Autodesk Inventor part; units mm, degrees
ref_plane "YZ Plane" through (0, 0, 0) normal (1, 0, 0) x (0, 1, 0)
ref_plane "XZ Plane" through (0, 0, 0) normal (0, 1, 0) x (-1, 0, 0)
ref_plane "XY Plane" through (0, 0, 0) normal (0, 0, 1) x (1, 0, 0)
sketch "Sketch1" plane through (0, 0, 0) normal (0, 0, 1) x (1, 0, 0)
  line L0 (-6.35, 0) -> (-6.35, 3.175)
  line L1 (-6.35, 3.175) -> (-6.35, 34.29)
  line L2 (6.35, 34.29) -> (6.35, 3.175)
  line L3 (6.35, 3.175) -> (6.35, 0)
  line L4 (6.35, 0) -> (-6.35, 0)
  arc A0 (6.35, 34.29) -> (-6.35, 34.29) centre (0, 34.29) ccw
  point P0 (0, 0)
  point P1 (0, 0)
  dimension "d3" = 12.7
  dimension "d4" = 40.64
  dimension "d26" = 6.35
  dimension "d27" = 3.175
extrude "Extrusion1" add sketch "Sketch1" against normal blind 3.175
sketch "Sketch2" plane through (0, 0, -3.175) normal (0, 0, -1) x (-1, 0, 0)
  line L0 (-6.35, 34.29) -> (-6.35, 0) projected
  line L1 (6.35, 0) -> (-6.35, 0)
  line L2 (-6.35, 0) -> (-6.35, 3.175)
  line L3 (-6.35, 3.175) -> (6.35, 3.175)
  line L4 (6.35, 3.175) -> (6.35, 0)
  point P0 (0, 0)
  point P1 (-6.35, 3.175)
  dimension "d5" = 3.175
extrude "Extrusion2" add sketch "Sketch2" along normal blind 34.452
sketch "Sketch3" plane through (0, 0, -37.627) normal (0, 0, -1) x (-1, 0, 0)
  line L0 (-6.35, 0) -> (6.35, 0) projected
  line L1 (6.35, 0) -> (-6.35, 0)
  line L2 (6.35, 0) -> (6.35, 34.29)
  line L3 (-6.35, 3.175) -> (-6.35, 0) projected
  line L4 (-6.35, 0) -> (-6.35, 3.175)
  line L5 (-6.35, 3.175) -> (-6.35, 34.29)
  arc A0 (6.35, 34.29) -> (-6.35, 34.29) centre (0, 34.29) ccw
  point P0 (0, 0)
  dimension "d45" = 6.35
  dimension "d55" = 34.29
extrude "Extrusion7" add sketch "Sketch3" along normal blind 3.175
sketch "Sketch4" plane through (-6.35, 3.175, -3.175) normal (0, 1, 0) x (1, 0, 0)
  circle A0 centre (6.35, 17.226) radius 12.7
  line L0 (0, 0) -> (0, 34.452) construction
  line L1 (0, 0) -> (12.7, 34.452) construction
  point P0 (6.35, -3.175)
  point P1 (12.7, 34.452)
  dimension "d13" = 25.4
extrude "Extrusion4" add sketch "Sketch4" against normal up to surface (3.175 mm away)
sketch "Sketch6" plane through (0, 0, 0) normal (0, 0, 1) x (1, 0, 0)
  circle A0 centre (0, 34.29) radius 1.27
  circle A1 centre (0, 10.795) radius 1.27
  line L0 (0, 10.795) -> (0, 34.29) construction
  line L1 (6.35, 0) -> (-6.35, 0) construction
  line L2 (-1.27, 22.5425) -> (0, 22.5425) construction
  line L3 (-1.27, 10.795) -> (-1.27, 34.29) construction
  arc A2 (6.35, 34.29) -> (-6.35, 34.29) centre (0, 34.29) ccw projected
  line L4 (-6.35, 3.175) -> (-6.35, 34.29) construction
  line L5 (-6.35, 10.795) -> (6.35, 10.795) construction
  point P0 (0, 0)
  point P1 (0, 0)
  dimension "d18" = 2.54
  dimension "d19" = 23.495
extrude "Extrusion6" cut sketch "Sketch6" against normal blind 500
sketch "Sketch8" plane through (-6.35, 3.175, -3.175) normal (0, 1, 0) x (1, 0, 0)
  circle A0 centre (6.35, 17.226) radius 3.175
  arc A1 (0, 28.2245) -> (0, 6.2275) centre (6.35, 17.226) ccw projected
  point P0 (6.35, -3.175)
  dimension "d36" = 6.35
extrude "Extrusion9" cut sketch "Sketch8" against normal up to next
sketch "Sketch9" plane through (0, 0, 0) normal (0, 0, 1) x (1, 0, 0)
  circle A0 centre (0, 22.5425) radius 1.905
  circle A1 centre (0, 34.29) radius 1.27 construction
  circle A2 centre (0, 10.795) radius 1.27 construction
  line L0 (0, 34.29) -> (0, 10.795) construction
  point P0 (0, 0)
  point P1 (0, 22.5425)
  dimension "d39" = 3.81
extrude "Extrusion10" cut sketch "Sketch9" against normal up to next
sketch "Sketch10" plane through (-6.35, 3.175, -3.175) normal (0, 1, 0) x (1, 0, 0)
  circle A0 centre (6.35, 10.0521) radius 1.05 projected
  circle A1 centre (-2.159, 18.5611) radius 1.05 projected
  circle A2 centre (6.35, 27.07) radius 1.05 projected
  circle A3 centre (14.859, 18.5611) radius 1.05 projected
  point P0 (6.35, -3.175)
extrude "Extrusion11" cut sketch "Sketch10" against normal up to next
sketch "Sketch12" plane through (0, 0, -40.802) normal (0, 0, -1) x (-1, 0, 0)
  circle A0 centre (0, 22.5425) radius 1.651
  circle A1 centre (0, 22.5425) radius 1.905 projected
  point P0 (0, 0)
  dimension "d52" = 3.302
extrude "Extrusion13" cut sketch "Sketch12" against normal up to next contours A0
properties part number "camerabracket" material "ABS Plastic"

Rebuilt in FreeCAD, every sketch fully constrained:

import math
import FreeCAD as App
import Part
import Sketcher

V = App.Vector
Q = App.Units.Quantity


def add_polygon(sketch, points):
    """Adds a closed chain of lines whose ends are joined by coincident constraints."""
    first, n = sketch.GeometryCount, len(points)
    for a, b in zip(points, points[1:] + points[:1]):
        sketch.addGeometry(Part.LineSegment(App.Vector(*a, 0), App.Vector(*b, 0)), False)
    for i in range(n):
        sketch.addConstraint(Sketcher.Constraint("Coincident", first + i, 2, first + (i + 1) % n, 1))

doc = App.newDocument("Part")
body = doc.addObject("PartDesign::Body", "Body")

sketch1 = body.newObject("Sketcher::SketchObject", "Sketch")
sketch1.AttachmentSupport = (doc.getObject("XY_Plane"), [""])
sketch1.MapMode = "FlatFace"
sketch1.addGeometry(Part.LineSegment(V(-6.35, 34.29, 0), V(-6.35, 0, 0)), False)
sketch1.addGeometry(Part.LineSegment(V(-6.35, 0, 0), V(6.35, 0, 0)), False)
sketch1.addGeometry(Part.LineSegment(V(6.35, 0, 0), V(6.35, 34.29, 0)), False)
sketch1.addGeometry(Part.ArcOfCircle(Part.Circle(V(0, 34.29, 0), V(0, 0, 1), 6.35), math.radians(0), math.radians(180)), False)
sketch1.addConstraint(Sketcher.Constraint("Coincident", 0, 2, 1, 1))
sketch1.addConstraint(Sketcher.Constraint("Coincident", 1, 2, 2, 1))
sketch1.addConstraint(Sketcher.Constraint("Tangent", 2, 2, 3, 1))
sketch1.addConstraint(Sketcher.Constraint("Tangent", 3, 2, 0, 1))
sketch1.addConstraint(Sketcher.Constraint("Vertical", 0))
sketch1.addConstraint(Sketcher.Constraint("Horizontal", 1))
sketch1.addConstraint(Sketcher.Constraint("Vertical", 2))
sketch1.addConstraint(Sketcher.Constraint("Symmetric", 0, 2, 1, 2, -1, 1))
sketch1.addConstraint(Sketcher.Constraint("Radius", 3, Q("0.25 in")))
sketch1.addConstraint(Sketcher.Constraint("DistanceY", 0, 2, 0, 1, Q("1.35 in")))
pad1 = body.newObject("PartDesign::Pad", "Pad")
pad1.Profile = sketch1
pad1.Length = Q("0.125 in")
pad1.Reversed = True

sketch2 = body.newObject("Sketcher::SketchObject", "Sketch001")
sketch2.AttachmentSupport = (doc.getObject("XY_Plane"), [""])
sketch2.MapMode = "FlatFace"
sketch2.AttachmentOffset = App.Placement(V(0, 0, -0.125 * 25.4), App.Rotation())
add_polygon(sketch2, [(-6.35, 3.175), (6.35, 3.175), (6.35, 0), (-6.35, 0)])
sketch2.addConstraint(Sketcher.Constraint("Horizontal", 0))
sketch2.addConstraint(Sketcher.Constraint("Vertical", 1))
sketch2.addConstraint(Sketcher.Constraint("Horizontal", 2))
sketch2.addConstraint(Sketcher.Constraint("Vertical", 3))
sketch2.addConstraint(Sketcher.Constraint("Symmetric", 1, 2, 2, 2, -1, 1))
sketch2.addConstraint(Sketcher.Constraint("DistanceY", 1, 2, 1, 1, Q("0.125 in")))
sketch2.addConstraint(Sketcher.Constraint("DistanceX", 0, 1, 0, 2, Q("0.5 in")))
pad2 = body.newObject("PartDesign::Pad", "Pad001")
pad2.Profile = sketch2
pad2.Length = 34.452
pad2.Reversed = True

sketch3 = body.newObject("Sketcher::SketchObject", "Sketch002")
sketch3.AttachmentSupport = (doc.getObject("XY_Plane"), [""])
sketch3.MapMode = "FlatFace"
sketch3.AttachmentOffset = App.Placement(V(0, 0, -37.627), App.Rotation())
sketch3.addGeometry(Part.LineSegment(V(6.35, 34.29, 0), V(6.35, 0, 0)), False)
sketch3.addGeometry(Part.LineSegment(V(6.35, 0, 0), V(-6.35, 0, 0)), False)
sketch3.addGeometry(Part.LineSegment(V(-6.35, 0, 0), V(-6.35, 34.29, 0)), False)
sketch3.addGeometry(Part.ArcOfCircle(Part.Circle(V(0, 34.29, 0), V(0, 0, 1), 6.35), math.radians(0), math.radians(180)), False)
sketch3.addConstraint(Sketcher.Constraint("Coincident", 0, 2, 1, 1))
sketch3.addConstraint(Sketcher.Constraint("Coincident", 1, 2, 2, 1))
sketch3.addConstraint(Sketcher.Constraint("Tangent", 2, 2, 3, 2))
sketch3.addConstraint(Sketcher.Constraint("Tangent", 3, 1, 0, 1))
sketch3.addConstraint(Sketcher.Constraint("Vertical", 0))
sketch3.addConstraint(Sketcher.Constraint("Horizontal", 1))
sketch3.addConstraint(Sketcher.Constraint("Vertical", 2))
sketch3.addConstraint(Sketcher.Constraint("Symmetric", 0, 2, 1, 2, -1, 1))
sketch3.addConstraint(Sketcher.Constraint("Radius", 3, Q("0.25 in")))
sketch3.addConstraint(Sketcher.Constraint("DistanceY", 0, 2, 0, 1, Q("1.35 in")))
pad3 = body.newObject("PartDesign::Pad", "Pad002")
pad3.Profile = sketch3
pad3.Length = Q("0.125 in")
pad3.Reversed = True

sketch4 = body.newObject("Sketcher::SketchObject", "Sketch003")
sketch4.AttachmentSupport = (doc.getObject("XZ_Plane"), [""])
sketch4.MapMode = "FlatFace"
sketch4.AttachmentOffset = App.Placement(V(0, 0, -0.125 * 25.4), App.Rotation())
sketch4.addGeometry(Part.Circle(V(0, -20.401, 0), V(0, 0, 1), 12.7), False)
sketch4.addConstraint(Sketcher.Constraint("PointOnObject", 0, 3, -2))
sketch4.addConstraint(Sketcher.Constraint("Diameter", 0, Q("1 in")))
sketch4.addConstraint(Sketcher.Constraint("DistanceY", 0, 3, -1, 1, Q("0.8032 in")))
pad4 = body.newObject("PartDesign::Pad", "Pad003")
pad4.Profile = sketch4
pad4.Length = Q("0.125 in")

sketch5 = body.newObject("Sketcher::SketchObject", "Sketch004")
sketch5.AttachmentSupport = (doc.getObject("XY_Plane"), [""])
sketch5.MapMode = "FlatFace"
sketch5.addGeometry(Part.Circle(V(0, 34.29, 0), V(0, 0, 1), 1.27), False)
sketch5.addGeometry(Part.Circle(V(0, 10.795, 0), V(0, 0, 1), 1.27), False)
sketch5.addConstraint(Sketcher.Constraint("Equal", 0, 1))
sketch5.addConstraint(Sketcher.Constraint("PointOnObject", 0, 3, -2))
sketch5.addConstraint(Sketcher.Constraint("PointOnObject", 1, 3, -2))
sketch5.addConstraint(Sketcher.Constraint("Diameter", 0, Q("0.1 in")))
sketch5.addConstraint(Sketcher.Constraint("DistanceY", 1, 3, 0, 3, Q("0.925 in")))
sketch5.addConstraint(Sketcher.Constraint("DistanceY", -1, 1, 0, 3, Q("1.35 in")))
pocket1 = body.newObject("PartDesign::Pocket", "Pocket")
pocket1.Profile = sketch5
pocket1.Length = 500

sketch6 = body.newObject("Sketcher::SketchObject", "Sketch005")
sketch6.AttachmentSupport = (doc.getObject("XZ_Plane"), [""])
sketch6.MapMode = "FlatFace"
sketch6.AttachmentOffset = App.Placement(V(0, 0, -0.125 * 25.4), App.Rotation())
sketch6.addGeometry(Part.Circle(V(0, -20.401, 0), V(0, 0, 1), 3.175), False)
sketch6.addConstraint(Sketcher.Constraint("PointOnObject", 0, 3, -2))
sketch6.addConstraint(Sketcher.Constraint("Diameter", 0, Q("0.25 in")))
sketch6.addConstraint(Sketcher.Constraint("DistanceY", 0, 3, -1, 1, Q("0.8032 in")))
pocket2 = body.newObject("PartDesign::Pocket", "Pocket001")
pocket2.Profile = sketch6
pocket2.Type = "UpToFirst"
pocket2.Reversed = True

sketch7 = body.newObject("Sketcher::SketchObject", "Sketch006")
sketch7.AttachmentSupport = (doc.getObject("XY_Plane"), [""])
sketch7.MapMode = "FlatFace"
sketch7.addGeometry(Part.Circle(V(0, 22.5425, 0), V(0, 0, 1), 1.905), False)
sketch7.addConstraint(Sketcher.Constraint("PointOnObject", 0, 3, -2))
sketch7.addConstraint(Sketcher.Constraint("Diameter", 0, Q("0.15 in")))
sketch7.addConstraint(Sketcher.Constraint("DistanceY", -1, 1, 0, 3, Q("0.8875 in")))
pocket3 = body.newObject("PartDesign::Pocket", "Pocket002")
pocket3.Profile = sketch7
pocket3.Type = "UpToFirst"

sketch8 = body.newObject("Sketcher::SketchObject", "Sketch007")
sketch8.AttachmentSupport = (doc.getObject("XZ_Plane"), [""])
sketch8.MapMode = "FlatFace"
sketch8.AttachmentOffset = App.Placement(V(0, 0, -0.125 * 25.4), App.Rotation())
sketch8.addGeometry(Part.Circle(V(0, -13.2271, 0), V(0, 0, 1), 1.05), False)
sketch8.addGeometry(Part.Circle(V(-8.509, -21.7361, 0), V(0, 0, 1), 1.05), False)
sketch8.addGeometry(Part.Circle(V(0, -30.245, 0), V(0, 0, 1), 1.05), False)
sketch8.addGeometry(Part.Circle(V(8.509, -21.7361, 0), V(0, 0, 1), 1.05), False)
sketch8.addConstraint(Sketcher.Constraint("Equal", 0, 1))
sketch8.addConstraint(Sketcher.Constraint("Equal", 1, 2))
sketch8.addConstraint(Sketcher.Constraint("Equal", 2, 3))
sketch8.addConstraint(Sketcher.Constraint("Symmetric", 1, 3, 3, 3, -2))
sketch8.addConstraint(Sketcher.Constraint("PointOnObject", 0, 3, -2))
sketch8.addConstraint(Sketcher.Constraint("PointOnObject", 2, 3, -2))
sketch8.addConstraint(Sketcher.Constraint("Diameter", 0, Q("2.1 mm")))
sketch8.addConstraint(Sketcher.Constraint("DistanceY", 2, 3, 0, 3, Q("0.67 in")))
sketch8.addConstraint(Sketcher.Constraint("DistanceX", 1, 3, 3, 3, Q("0.67 in")))
sketch8.addConstraint(Sketcher.Constraint("DistanceY", 1, 3, 0, 3, Q("0.335 in")))
sketch8.addConstraint(Sketcher.Constraint("DistanceY", 0, 3, -1, 1, Q("13.227 mm")))
pocket4 = body.newObject("PartDesign::Pocket", "Pocket003")
pocket4.Profile = sketch8
pocket4.Length = Q("0.125 in")
pocket4.Reversed = True

sketch9 = body.newObject("Sketcher::SketchObject", "Sketch008")
sketch9.AttachmentSupport = (doc.getObject("XY_Plane"), [""])
sketch9.MapMode = "FlatFace"
sketch9.AttachmentOffset = App.Placement(V(0, 0, -40.802), App.Rotation())
sketch9.addGeometry(Part.Circle(V(0, 22.5425, 0), V(0, 0, 1), 1.651), False)
sketch9.addConstraint(Sketcher.Constraint("PointOnObject", 0, 3, -2))
sketch9.addConstraint(Sketcher.Constraint("Diameter", 0, Q("0.13 in")))
sketch9.addConstraint(Sketcher.Constraint("DistanceY", -1, 1, 0, 3, Q("0.8875 in")))
pocket5 = body.newObject("PartDesign::Pocket", "Pocket004")
pocket5.Profile = sketch9
pocket5.Type = "UpToFirst"
pocket5.Reversed = True

doc.recompute()
